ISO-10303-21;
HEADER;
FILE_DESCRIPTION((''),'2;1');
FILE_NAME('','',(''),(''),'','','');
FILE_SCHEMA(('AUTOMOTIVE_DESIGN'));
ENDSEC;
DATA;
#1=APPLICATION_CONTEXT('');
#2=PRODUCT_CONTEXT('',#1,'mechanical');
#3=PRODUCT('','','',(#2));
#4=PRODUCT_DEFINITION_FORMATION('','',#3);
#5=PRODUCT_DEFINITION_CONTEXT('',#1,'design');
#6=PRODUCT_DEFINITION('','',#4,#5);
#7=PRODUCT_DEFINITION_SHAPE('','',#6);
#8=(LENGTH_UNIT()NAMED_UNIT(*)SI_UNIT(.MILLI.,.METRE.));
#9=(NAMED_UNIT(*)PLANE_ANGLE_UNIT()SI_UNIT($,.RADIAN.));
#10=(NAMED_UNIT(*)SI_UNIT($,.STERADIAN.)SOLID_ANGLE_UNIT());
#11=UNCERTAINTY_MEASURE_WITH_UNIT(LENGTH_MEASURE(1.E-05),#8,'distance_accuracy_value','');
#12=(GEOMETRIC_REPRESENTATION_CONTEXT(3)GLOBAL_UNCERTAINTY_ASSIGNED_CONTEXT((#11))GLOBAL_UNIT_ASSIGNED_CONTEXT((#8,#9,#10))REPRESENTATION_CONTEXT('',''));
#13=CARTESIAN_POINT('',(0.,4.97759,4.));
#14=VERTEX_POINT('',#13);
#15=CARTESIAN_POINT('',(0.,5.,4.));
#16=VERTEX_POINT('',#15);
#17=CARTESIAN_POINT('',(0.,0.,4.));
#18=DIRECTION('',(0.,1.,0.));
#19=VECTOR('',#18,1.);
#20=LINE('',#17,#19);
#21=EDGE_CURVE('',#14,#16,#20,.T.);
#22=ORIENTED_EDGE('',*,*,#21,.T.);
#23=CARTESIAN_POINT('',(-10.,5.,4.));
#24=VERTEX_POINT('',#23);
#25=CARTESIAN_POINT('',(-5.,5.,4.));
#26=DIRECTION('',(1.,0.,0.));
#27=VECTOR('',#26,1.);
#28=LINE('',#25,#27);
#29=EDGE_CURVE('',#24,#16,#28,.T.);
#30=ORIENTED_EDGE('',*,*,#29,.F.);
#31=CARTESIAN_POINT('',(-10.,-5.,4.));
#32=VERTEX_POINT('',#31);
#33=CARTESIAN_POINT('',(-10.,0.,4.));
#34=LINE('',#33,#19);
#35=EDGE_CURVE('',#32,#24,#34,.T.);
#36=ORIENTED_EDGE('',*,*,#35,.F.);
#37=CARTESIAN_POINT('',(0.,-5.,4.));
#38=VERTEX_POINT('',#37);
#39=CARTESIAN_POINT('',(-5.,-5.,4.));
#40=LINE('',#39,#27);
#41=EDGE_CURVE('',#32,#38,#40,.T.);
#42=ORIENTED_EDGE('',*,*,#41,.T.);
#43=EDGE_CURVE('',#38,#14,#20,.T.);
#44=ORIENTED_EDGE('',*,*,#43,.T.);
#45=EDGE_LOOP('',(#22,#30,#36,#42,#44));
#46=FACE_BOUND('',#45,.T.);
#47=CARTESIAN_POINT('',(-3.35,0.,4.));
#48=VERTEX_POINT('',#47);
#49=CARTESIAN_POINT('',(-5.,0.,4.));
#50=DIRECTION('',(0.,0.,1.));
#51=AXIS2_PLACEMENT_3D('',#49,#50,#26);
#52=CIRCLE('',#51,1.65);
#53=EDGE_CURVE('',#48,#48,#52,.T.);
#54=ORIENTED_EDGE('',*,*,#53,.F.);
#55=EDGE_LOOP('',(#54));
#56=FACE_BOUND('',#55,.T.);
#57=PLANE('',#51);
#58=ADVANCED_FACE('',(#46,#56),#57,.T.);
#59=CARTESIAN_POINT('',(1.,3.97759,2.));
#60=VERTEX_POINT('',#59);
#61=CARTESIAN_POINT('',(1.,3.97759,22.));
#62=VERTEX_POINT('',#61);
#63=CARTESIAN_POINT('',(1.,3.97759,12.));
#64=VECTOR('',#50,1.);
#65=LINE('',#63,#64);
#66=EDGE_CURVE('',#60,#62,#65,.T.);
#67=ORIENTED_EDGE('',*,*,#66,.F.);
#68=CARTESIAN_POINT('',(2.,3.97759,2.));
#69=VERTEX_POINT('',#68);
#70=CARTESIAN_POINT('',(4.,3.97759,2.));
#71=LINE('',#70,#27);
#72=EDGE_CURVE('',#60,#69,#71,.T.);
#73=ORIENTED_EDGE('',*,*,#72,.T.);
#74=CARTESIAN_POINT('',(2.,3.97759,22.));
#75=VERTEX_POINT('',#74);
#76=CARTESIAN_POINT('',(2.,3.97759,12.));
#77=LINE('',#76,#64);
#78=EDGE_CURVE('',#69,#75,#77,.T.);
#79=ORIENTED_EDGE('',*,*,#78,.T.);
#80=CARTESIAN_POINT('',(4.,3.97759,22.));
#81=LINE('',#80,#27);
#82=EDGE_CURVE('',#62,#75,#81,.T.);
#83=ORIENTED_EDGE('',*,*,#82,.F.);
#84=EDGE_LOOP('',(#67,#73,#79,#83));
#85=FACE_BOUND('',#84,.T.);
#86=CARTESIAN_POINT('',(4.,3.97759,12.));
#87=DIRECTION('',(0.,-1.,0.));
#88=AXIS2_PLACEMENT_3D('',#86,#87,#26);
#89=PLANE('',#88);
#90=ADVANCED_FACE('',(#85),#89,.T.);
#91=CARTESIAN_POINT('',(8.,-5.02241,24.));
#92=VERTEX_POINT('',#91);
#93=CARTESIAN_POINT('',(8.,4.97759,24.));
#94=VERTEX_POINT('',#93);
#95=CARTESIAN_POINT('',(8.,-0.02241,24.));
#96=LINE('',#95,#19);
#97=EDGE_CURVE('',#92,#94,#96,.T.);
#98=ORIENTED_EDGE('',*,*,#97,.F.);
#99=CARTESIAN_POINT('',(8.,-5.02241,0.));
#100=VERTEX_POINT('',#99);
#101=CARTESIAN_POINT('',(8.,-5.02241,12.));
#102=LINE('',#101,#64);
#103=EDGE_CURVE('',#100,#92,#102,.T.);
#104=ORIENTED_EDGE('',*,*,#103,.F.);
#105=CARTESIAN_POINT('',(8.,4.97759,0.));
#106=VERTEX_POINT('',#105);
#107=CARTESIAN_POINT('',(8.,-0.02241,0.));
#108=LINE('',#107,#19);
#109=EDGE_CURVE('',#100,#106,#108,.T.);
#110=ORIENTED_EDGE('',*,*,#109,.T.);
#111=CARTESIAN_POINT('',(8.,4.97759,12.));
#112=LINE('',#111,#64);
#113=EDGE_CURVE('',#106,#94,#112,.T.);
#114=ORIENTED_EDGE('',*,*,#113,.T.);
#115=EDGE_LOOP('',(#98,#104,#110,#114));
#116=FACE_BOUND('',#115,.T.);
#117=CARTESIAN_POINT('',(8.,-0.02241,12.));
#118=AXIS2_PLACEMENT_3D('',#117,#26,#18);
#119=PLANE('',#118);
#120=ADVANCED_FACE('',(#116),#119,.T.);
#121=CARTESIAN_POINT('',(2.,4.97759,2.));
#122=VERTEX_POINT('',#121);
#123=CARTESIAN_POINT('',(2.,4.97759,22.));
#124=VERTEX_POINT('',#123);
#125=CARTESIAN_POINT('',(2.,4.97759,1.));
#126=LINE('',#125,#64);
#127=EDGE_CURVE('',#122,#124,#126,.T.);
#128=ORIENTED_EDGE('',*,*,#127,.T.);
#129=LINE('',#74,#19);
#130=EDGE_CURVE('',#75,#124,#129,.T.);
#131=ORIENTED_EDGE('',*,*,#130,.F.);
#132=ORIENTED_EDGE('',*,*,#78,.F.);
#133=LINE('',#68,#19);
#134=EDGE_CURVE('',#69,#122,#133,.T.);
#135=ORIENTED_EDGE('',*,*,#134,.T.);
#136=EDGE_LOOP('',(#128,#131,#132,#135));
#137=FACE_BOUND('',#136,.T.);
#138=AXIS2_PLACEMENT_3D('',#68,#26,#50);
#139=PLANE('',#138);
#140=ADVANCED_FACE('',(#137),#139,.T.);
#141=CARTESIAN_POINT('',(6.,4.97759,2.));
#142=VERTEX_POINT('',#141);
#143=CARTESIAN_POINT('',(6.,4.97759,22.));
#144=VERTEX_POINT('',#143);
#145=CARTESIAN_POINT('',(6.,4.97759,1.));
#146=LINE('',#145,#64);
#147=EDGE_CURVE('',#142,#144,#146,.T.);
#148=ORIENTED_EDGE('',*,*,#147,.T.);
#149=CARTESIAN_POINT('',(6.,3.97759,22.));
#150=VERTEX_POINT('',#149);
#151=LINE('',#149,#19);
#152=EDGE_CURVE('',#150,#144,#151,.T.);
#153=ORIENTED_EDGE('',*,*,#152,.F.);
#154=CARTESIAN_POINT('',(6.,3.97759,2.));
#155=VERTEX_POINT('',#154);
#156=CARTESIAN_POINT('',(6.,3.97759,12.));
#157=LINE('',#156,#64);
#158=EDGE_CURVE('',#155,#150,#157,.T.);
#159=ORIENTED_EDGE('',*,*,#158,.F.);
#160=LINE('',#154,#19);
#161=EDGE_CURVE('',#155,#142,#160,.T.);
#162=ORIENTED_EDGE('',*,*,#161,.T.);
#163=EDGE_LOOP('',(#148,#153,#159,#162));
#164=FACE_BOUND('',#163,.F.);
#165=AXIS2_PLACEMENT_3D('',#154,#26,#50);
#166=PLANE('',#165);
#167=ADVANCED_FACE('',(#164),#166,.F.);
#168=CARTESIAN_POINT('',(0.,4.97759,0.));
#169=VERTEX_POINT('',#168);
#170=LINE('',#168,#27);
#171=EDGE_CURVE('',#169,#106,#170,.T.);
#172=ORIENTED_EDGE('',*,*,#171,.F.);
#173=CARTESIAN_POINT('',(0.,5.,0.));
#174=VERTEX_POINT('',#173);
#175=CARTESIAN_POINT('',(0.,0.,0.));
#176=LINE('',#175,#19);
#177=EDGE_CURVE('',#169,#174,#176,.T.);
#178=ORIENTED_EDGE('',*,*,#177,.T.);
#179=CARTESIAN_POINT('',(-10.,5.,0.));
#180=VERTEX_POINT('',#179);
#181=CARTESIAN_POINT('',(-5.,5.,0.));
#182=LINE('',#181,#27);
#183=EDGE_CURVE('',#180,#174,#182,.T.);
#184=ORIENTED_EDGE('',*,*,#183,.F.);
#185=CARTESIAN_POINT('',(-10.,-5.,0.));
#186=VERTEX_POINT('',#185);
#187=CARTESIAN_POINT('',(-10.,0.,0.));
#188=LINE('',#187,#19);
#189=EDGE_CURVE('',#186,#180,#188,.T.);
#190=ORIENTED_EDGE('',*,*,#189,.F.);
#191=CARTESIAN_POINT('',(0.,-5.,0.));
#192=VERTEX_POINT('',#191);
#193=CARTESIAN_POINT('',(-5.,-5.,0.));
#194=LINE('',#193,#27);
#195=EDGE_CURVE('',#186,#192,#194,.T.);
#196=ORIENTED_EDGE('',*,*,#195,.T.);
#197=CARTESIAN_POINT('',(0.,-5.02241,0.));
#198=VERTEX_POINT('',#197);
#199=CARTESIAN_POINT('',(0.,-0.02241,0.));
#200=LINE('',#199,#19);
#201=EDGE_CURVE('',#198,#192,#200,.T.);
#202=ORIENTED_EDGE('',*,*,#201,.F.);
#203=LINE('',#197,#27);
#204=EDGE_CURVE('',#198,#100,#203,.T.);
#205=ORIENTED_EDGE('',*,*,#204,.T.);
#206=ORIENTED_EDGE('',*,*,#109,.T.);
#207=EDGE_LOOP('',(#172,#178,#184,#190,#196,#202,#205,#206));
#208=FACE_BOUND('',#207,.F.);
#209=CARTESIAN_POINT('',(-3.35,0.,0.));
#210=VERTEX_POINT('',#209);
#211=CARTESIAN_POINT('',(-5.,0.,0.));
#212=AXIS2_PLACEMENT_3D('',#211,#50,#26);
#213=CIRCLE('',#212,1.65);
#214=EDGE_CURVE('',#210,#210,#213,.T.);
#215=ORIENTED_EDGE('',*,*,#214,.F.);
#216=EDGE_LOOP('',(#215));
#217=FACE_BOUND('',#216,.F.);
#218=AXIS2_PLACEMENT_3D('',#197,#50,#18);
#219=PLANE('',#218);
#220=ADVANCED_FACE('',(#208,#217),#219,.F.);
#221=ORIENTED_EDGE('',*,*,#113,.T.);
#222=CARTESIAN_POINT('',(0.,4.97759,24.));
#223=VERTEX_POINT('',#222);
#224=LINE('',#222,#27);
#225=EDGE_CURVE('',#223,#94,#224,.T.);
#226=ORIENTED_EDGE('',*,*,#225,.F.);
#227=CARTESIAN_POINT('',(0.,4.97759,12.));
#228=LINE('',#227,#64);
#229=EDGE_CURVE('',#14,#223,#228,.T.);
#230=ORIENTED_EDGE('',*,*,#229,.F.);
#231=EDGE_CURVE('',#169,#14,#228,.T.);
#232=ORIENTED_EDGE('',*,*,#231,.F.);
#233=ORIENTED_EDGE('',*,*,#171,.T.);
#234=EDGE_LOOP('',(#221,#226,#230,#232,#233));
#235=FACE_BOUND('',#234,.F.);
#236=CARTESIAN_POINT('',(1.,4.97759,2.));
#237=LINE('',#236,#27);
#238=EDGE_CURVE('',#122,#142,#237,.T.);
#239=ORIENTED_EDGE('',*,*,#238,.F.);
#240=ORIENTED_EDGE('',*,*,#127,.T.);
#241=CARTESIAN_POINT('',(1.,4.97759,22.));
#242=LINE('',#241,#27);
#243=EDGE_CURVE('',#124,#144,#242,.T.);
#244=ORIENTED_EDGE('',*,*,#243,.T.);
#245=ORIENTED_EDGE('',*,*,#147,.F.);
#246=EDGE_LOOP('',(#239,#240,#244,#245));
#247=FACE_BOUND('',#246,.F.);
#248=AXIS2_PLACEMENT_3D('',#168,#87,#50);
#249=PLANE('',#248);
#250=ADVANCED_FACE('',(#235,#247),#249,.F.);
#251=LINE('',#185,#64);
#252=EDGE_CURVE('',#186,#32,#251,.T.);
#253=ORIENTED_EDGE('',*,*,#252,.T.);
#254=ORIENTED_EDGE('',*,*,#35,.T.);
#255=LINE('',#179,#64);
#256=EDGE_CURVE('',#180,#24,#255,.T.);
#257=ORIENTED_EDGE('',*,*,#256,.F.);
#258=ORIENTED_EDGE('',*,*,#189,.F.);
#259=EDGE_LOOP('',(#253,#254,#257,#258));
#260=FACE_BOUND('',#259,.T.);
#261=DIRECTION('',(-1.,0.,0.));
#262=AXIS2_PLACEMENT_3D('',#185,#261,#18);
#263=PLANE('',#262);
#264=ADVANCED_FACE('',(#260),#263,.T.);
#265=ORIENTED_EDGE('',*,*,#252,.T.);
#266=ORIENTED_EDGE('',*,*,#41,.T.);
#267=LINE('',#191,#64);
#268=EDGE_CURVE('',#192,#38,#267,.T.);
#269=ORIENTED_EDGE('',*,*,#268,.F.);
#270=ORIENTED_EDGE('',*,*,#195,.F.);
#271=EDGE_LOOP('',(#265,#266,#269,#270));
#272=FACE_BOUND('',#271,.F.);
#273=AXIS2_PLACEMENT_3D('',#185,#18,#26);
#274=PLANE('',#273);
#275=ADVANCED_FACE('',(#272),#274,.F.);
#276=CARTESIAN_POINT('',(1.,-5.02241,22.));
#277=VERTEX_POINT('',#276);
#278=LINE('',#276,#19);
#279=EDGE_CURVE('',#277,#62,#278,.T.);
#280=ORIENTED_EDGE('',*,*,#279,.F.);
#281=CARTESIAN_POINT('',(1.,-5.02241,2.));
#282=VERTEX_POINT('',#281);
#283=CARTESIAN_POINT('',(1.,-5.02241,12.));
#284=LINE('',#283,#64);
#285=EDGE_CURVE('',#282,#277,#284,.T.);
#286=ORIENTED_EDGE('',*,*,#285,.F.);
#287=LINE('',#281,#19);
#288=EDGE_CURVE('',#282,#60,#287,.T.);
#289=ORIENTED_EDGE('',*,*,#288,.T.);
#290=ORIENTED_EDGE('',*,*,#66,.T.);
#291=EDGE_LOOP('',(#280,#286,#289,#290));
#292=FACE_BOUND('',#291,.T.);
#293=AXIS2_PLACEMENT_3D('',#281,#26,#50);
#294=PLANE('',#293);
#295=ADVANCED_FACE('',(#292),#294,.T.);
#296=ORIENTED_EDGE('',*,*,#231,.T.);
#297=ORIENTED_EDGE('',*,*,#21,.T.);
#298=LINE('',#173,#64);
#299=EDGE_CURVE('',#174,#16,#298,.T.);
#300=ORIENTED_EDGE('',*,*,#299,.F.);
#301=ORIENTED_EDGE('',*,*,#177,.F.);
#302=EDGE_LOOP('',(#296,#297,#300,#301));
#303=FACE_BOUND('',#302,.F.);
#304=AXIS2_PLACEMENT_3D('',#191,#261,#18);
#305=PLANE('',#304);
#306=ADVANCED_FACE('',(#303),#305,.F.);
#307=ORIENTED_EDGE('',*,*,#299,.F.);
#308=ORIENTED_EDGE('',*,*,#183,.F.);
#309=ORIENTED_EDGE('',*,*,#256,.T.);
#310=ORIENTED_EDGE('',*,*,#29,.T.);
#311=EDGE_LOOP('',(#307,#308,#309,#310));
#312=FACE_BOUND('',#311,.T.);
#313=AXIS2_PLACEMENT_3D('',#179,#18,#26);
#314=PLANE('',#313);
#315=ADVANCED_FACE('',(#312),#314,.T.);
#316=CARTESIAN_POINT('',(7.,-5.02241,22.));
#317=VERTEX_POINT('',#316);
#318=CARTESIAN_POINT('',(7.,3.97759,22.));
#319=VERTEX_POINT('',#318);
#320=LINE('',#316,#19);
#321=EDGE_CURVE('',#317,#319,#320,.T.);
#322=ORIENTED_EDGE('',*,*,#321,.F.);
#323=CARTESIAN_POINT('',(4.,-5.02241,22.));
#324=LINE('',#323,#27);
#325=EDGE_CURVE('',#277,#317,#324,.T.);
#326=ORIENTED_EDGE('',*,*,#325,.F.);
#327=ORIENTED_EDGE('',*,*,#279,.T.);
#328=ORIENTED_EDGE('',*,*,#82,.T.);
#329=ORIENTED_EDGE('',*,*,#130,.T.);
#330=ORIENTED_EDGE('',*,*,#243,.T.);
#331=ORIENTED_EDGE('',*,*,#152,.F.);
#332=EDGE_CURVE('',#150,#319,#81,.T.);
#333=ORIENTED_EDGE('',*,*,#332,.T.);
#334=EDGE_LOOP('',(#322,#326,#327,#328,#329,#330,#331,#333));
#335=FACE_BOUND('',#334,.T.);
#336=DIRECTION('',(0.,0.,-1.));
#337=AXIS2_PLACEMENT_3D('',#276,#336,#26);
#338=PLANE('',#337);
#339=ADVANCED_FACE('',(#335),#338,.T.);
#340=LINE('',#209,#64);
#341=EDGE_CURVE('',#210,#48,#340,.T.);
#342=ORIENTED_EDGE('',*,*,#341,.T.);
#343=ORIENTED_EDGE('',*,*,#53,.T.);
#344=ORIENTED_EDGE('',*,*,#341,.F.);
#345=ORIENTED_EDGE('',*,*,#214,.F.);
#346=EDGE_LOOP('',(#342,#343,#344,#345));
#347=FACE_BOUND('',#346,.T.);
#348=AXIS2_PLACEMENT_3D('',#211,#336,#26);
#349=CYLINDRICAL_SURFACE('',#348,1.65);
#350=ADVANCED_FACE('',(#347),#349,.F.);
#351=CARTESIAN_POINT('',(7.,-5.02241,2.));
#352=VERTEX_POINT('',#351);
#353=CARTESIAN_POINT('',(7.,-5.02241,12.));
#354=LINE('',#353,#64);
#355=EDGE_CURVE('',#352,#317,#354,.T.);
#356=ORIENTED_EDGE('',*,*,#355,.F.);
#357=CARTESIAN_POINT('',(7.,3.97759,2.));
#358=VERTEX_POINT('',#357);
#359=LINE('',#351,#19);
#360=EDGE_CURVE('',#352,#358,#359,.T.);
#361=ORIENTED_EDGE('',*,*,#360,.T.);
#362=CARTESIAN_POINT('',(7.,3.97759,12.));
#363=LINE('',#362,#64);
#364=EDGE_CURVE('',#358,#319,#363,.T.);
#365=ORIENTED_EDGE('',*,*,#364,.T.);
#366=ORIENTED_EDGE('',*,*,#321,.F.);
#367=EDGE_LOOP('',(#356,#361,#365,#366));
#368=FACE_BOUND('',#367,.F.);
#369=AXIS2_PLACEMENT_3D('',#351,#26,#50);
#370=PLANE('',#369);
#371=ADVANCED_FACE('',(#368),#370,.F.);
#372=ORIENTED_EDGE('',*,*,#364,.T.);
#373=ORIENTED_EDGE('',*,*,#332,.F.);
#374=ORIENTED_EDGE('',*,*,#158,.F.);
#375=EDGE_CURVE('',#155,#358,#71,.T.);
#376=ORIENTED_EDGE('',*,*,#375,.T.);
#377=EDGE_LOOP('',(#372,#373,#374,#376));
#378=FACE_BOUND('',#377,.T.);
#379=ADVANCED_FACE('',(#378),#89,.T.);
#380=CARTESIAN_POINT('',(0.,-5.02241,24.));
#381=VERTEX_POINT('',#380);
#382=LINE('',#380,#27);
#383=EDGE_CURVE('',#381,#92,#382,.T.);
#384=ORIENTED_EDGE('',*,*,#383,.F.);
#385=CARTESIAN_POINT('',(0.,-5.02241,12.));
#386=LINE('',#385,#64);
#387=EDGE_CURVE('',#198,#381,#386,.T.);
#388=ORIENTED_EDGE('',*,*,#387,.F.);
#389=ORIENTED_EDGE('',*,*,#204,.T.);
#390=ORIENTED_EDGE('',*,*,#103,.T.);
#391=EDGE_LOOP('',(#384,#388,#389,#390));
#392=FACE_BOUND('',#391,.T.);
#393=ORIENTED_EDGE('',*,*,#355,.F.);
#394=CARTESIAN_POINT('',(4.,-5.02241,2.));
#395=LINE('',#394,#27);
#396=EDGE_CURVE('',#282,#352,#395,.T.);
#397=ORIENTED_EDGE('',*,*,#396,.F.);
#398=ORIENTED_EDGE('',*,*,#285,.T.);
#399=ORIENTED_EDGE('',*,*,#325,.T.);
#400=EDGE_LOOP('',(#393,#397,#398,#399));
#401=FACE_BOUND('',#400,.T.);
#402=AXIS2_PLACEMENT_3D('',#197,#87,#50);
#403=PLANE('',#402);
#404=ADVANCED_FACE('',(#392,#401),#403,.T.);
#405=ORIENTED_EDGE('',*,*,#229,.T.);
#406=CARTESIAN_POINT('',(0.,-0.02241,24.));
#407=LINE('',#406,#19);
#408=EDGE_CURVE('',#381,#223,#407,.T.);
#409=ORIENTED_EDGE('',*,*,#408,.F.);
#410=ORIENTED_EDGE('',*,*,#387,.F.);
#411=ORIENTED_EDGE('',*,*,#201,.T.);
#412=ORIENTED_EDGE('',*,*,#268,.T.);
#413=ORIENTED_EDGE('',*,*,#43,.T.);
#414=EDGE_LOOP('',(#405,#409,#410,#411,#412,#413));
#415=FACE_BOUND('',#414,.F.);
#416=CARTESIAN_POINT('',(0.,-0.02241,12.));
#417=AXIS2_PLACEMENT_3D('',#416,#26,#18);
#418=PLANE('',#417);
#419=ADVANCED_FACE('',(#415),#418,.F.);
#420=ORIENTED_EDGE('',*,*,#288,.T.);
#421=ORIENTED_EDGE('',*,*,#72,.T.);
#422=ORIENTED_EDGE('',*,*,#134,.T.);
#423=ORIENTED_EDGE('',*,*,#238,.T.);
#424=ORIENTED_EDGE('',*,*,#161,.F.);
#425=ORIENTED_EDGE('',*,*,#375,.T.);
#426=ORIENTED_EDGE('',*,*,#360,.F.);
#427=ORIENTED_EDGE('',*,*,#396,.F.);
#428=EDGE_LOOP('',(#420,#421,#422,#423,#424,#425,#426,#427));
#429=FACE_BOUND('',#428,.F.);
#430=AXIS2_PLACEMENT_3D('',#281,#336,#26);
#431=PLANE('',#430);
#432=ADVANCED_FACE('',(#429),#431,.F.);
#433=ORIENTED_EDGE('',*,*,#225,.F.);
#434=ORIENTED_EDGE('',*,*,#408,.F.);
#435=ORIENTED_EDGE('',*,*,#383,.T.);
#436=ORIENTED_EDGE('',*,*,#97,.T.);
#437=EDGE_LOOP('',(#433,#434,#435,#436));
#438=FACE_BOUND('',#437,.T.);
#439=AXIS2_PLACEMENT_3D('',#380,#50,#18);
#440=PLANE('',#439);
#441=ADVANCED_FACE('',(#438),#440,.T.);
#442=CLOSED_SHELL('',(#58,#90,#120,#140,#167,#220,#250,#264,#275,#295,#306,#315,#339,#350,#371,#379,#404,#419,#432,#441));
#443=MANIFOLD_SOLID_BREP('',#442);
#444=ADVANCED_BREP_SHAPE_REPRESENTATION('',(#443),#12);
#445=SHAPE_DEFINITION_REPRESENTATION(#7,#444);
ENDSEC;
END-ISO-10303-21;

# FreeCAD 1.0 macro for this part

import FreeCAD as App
import Part
import Sketcher

V = App.Vector


def add_polygon(sketch, points):
    """Adds a closed chain of lines whose ends are joined by coincident constraints."""
    first, n = sketch.GeometryCount, len(points)
    for a, b in zip(points, points[1:] + points[:1]):
        sketch.addGeometry(Part.LineSegment(App.Vector(*a, 0), App.Vector(*b, 0)), False)
    for i in range(n):
        sketch.addConstraint(Sketcher.Constraint("Coincident", first + i, 2, first + (i + 1) % n, 1))

doc = App.newDocument("Part")
body = doc.addObject("PartDesign::Body", "Body")

# Sketch on XY plane
sketch1 = body.newObject("Sketcher::SketchObject", "Sketch")
sketch1.AttachmentSupport = (doc.getObject("XY_Plane"), [""])
sketch1.MapMode = "FlatFace"
add_polygon(sketch1, [(-10, 5), (-10, -5), (0, -5), (0, 5)])  # lines 0-3
sketch1.addGeometry(Part.Circle(V(-5, 0, 0), V(0, 0, 1), 1.6), False)  # 4
sketch1.addConstraint(Sketcher.Constraint("Vertical", 0))
sketch1.addConstraint(Sketcher.Constraint("Horizontal", 1))
sketch1.addConstraint(Sketcher.Constraint("Vertical", 2))
sketch1.addConstraint(Sketcher.Constraint("Horizontal", 3))
sketch1.addConstraint(Sketcher.Constraint("Symmetric", 1, 2, 2, 2, -1, 1))
sketch1.addConstraint(Sketcher.Constraint("PointOnObject", 4, 3, -1))
sketch1.addConstraint(Sketcher.Constraint("Equal", 3, 0))
sketch1.addConstraint(Sketcher.Constraint("Diameter", 4, 3.3))
sketch1.addConstraint(Sketcher.Constraint("DistanceX", 1, 1, 1, 2, 10.0))
sketch1.addConstraint(Sketcher.Constraint("DistanceX", 4, 3, -1, 1, 5.0))
pad1 = body.newObject("PartDesign::Pad", "Pad")
pad1.Profile = sketch1
pad1.Length = 4

# Sketch on YZ plane
sketch2 = body.newObject("Sketcher::SketchObject", "Sketch001")
sketch2.AttachmentSupport = (doc.getObject("YZ_Plane"), [""])
sketch2.MapMode = "FlatFace"
add_polygon(sketch2, [(-5, 24), (-5, 0), (5, 0), (5, 24)])  # lines 0-3
sketch2.addConstraint(Sketcher.Constraint("Vertical", 0))
sketch2.addConstraint(Sketcher.Constraint("Horizontal", 1))
sketch2.addConstraint(Sketcher.Constraint("Vertical", 2))
sketch2.addConstraint(Sketcher.Constraint("Horizontal", 3))
sketch2.addConstraint(Sketcher.Constraint("PointOnObject", 0, 2, -1))
sketch2.addConstraint(Sketcher.Constraint("DistanceX", 1, 1, 1, 2, 10.0))
sketch2.addConstraint(Sketcher.Constraint("DistanceY", 0, 2, 0, 1, 24.0))
sketch2.addConstraint(Sketcher.Constraint("DistanceX", 0, 2, -1, 1, 5.02241))
pad2 = body.newObject("PartDesign::Pad", "Pad001")
pad2.Profile = sketch2
pad2.Length = 8

# Sketch on XZ plane
sketch3 = body.newObject("Sketcher::SketchObject", "Sketch002")
sketch3.AttachmentSupport = (doc.getObject("XZ_Plane"), [""])
sketch3.MapMode = "FlatFace"
sketch3.AttachmentOffset = App.Placement(V(0, 0, 5.02241), App.Rotation())
add_polygon(sketch3, [(1, 22), (1, 2), (7, 2), (7, 22)])  # lines 0-3
sketch3.addConstraint(Sketcher.Constraint("Vertical", 0))
sketch3.addConstraint(Sketcher.Constraint("Horizontal", 1))
sketch3.addConstraint(Sketcher.Constraint("Vertical", 2))
sketch3.addConstraint(Sketcher.Constraint("Horizontal", 3))
sketch3.addConstraint(Sketcher.Constraint("DistanceX", 1, 1, 1, 2, 6.0))
sketch3.addConstraint(Sketcher.Constraint("DistanceY", 0, 2, 0, 1, 20.0))
sketch3.addConstraint(Sketcher.Constraint("DistanceX", -1, 1, 0, 2, 1.0))
sketch3.addConstraint(Sketcher.Constraint("DistanceY", -1, 1, 0, 2, 2.0))
pocket1 = body.newObject("PartDesign::Pocket", "Pocket")
pocket1.Profile = sketch3
pocket1.Length = 9

# Sketch on XZ plane
sketch4 = body.newObject("Sketcher::SketchObject", "Sketch003")
sketch4.AttachmentSupport = (doc.getObject("XZ_Plane"), [""])
sketch4.MapMode = "FlatFace"
sketch4.AttachmentOffset = App.Placement(V(0, 0, -3.97759), App.Rotation())
add_polygon(sketch4, [(2, 22), (2, 2), (6, 2), (6, 22)])  # lines 0-3
sketch4.addConstraint(Sketcher.Constraint("Vertical", 0))
sketch4.addConstraint(Sketcher.Constraint("Horizontal", 1))
sketch4.addConstraint(Sketcher.Constraint("Vertical", 2))
sketch4.addConstraint(Sketcher.Constraint("Horizontal", 3))
sketch4.addConstraint(Sketcher.Constraint("DistanceX", 1, 1, 1, 2, 4.0))
sketch4.addConstraint(Sketcher.Constraint("DistanceY", 0, 2, 0, 1, 20.0))
sketch4.addConstraint(Sketcher.Constraint("DistanceX", -1, 1, 0, 2, 2.0))
sketch4.addConstraint(Sketcher.Constraint("DistanceY", -1, 1, 0, 2, 2.0))
pocket2 = body.newObject("PartDesign::Pocket", "Pocket001")
pocket2.Profile = sketch4
pocket2.Length = 5

doc.recompute()
